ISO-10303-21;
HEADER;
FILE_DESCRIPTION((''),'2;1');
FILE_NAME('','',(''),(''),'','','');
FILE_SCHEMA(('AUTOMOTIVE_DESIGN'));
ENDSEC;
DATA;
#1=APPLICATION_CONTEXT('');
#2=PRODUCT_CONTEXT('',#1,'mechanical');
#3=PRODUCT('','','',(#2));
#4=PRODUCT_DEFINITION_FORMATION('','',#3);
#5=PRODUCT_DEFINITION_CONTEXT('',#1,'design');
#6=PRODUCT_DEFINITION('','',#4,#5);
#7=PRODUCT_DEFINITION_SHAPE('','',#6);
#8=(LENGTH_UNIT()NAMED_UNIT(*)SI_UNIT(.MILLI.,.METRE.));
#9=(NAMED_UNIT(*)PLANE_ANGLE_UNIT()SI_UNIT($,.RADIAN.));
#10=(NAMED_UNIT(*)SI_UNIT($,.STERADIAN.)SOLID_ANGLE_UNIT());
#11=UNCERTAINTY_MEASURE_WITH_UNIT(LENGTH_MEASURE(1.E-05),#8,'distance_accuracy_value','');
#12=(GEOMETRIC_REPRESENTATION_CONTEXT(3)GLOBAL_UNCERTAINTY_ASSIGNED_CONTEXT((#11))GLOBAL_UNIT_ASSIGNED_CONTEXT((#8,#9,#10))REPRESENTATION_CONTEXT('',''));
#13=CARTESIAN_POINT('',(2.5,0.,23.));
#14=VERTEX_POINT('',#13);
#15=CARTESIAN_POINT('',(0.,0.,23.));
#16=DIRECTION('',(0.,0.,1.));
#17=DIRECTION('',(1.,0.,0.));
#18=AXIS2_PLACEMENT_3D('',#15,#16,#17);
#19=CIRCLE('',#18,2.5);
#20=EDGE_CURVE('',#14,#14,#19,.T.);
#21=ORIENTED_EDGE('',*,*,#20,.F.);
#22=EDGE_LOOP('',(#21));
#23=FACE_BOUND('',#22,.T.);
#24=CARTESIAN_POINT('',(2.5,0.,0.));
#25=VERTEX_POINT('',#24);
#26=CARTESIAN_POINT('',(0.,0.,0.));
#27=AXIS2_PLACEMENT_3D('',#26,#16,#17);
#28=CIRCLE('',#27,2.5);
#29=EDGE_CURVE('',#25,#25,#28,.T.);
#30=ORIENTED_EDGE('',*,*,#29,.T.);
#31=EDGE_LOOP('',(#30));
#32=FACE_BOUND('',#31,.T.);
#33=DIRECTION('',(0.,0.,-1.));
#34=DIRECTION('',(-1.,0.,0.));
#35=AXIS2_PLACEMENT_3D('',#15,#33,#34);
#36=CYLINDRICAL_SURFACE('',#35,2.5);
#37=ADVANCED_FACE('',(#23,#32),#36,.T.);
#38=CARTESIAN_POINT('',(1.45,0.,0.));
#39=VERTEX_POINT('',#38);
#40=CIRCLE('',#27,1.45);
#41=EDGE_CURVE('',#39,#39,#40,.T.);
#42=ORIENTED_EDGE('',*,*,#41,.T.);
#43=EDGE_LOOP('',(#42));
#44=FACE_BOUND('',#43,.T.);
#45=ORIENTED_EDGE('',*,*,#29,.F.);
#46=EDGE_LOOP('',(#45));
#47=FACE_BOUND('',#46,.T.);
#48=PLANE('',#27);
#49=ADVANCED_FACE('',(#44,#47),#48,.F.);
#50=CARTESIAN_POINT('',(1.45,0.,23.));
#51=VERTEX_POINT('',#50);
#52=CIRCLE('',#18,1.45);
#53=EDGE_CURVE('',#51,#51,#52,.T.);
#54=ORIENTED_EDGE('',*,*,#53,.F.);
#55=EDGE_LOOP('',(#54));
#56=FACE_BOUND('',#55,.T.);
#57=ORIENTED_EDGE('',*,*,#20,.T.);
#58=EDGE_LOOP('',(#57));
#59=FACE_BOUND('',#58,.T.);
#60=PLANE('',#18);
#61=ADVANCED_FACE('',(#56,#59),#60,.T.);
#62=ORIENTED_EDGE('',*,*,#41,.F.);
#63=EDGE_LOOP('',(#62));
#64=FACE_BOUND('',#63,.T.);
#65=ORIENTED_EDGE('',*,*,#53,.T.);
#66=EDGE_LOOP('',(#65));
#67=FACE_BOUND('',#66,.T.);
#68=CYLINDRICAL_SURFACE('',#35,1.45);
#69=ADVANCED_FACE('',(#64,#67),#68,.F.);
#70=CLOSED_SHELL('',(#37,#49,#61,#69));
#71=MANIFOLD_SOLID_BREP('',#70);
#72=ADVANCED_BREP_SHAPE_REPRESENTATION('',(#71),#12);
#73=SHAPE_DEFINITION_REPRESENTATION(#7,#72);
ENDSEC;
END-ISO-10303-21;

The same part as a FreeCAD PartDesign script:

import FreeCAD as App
import Part
import Sketcher
from FreeCAD import Vector

doc = App.newDocument("Part")
body = doc.addObject("PartDesign::Body", "Body")

sketch1 = body.newObject("Sketcher::SketchObject", "Sketch")
sketch1.AttachmentSupport = (doc.getObject("XY_Plane"), [""])
sketch1.MapMode = "FlatFace"
sketch1.addGeometry([
    Part.Circle(Vector(0, 0, 0), Vector(0, 0, 1), 2.5),
    Part.Circle(Vector(0, 0, 0), Vector(0, 0, 1), 1.4),
], False)
sketch1.addConstraint([
    Sketcher.Constraint("Coincident", 0, 3, -1, 1),
    Sketcher.Constraint("Coincident", 1, 3, -1, 1),
    Sketcher.Constraint("Diameter", 0, 5.0),
    Sketcher.Constraint("Diameter", 1, 2.9),
])
pad1 = body.newObject("PartDesign::Pad", "Pad")
pad1.Profile = sketch1
pad1.Length = 23

doc.recompute()
